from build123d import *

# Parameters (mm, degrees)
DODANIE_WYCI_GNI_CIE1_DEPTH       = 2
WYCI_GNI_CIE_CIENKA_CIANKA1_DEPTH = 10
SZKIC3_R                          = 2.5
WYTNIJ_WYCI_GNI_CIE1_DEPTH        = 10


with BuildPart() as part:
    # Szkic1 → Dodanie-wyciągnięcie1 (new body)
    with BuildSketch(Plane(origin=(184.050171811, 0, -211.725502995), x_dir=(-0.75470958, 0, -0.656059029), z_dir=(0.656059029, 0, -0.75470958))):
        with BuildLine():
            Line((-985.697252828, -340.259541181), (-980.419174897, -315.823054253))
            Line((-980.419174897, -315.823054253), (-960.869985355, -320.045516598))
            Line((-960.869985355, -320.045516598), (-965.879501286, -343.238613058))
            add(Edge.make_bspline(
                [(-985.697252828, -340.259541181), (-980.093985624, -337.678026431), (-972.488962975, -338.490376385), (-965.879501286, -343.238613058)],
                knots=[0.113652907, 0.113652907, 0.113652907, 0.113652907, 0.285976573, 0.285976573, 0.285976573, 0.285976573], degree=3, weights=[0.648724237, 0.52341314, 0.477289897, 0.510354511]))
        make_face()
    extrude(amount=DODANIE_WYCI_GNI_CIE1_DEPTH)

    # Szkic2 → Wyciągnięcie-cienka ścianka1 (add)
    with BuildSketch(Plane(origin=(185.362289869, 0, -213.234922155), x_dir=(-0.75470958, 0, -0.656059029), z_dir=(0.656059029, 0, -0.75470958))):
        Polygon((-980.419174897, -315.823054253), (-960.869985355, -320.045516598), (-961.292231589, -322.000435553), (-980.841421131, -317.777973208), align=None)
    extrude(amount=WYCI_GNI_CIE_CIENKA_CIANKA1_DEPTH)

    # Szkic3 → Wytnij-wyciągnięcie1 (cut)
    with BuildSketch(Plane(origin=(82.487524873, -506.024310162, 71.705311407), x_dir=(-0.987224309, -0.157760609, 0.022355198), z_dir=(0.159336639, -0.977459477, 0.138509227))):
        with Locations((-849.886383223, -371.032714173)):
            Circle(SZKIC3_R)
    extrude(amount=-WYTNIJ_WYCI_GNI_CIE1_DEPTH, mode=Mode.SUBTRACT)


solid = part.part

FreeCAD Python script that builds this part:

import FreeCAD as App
import Part
import Sketcher
from FreeCAD import Vector
Q = App.Units.Quantity

doc = App.newDocument("Part")
body = doc.addObject("PartDesign::Body", "Body")

sketch1 = doc.addObject("Sketcher::SketchObject", "Sketch")
body.addObject(sketch1)
sketch1.Placement = App.Placement(Vector(184.050172, 0, -211.725503), App.Rotation(Vector(-0.75470958, 0, -0.656059029), Vector(0, 1, 0), Vector(0.656059029, 0, -0.75470958), "ZXY"))
sketch1.addGeometry(Part.LineSegment(Vector(-980.419175, -315.823054, 0), Vector(-985.697253, -340.259541, 0)), False)
sketch1.addGeometry(Part.BSplineCurve([Vector(-985.697253, -340.259541, 0), Vector(-980.093985, -337.678026, 0), Vector(-972.488963, -338.490376, 0), Vector(-965.879501, -343.238613, 0)], [4, 4], [0.113652907, 0.285976573], False, 3, [0.648724237, 0.52341314, 0.477289897, 0.510354511], False), False)
sketch1.addGeometry(Part.LineSegment(Vector(-965.879501, -343.238613, 0), Vector(-960.869985, -320.045516, 0)), False)
sketch1.addGeometry(Part.LineSegment(Vector(-960.869985, -320.045516, 0), Vector(-980.419175, -315.823054, 0)), False)
sketch1.addConstraint(Sketcher.Constraint("Block", 1))
sketch1.addConstraint(Sketcher.Constraint("Coincident", 0, 2, 1, 1))
sketch1.addConstraint(Sketcher.Constraint("Coincident", 1, 2, 2, 1))
sketch1.addConstraint(Sketcher.Constraint("Coincident", 2, 2, 3, 1))
sketch1.addConstraint(Sketcher.Constraint("Coincident", 3, 2, 0, 1))
sketch1.addConstraint(Sketcher.Constraint("Distance", 0, Q("25 mm")))
sketch1.addConstraint(Sketcher.Constraint("Distance", 3, Q("20 mm")))
sketch1.addConstraint(Sketcher.Constraint("DistanceX", 3, 2, 2, 2, Q("19.54919 mm")))
sketch1.addConstraint(Sketcher.Constraint("DistanceX", 2, 2, -1, 1, Q("960.869985 mm")))
pad1 = doc.addObject("PartDesign::Pad", "Pad")
body.addObject(pad1)
pad1.Profile = sketch1
pad1.Length = 2

sketch2 = doc.addObject("Sketcher::SketchObject", "Sketch001")
body.addObject(sketch2)
sketch2.Placement = App.Placement(Vector(185.36229, 0, -213.234922), App.Rotation(Vector(-0.75470958, 0, -0.656059029), Vector(0, 1, 0), Vector(0.656059029, 0, -0.75470958), "ZXY"))
sketch2.addGeometry(Part.LineSegment(Vector(-960.869985, -320.045516, 0), Vector(-980.419175, -315.823054, 0)), False)
sketch2.addGeometry(Part.LineSegment(Vector(-980.419175, -315.823054, 0), Vector(-980.841421, -317.777973, 0)), False)
sketch2.addGeometry(Part.LineSegment(Vector(-980.841421, -317.777973, 0), Vector(-961.292231, -322.000435, 0)), False)
sketch2.addGeometry(Part.LineSegment(Vector(-961.292231, -322.000435, 0), Vector(-960.869985, -320.045516, 0)), False)
sketch2.addConstraint(Sketcher.Constraint("Coincident", 0, 2, 1, 1))
sketch2.addConstraint(Sketcher.Constraint("Coincident", 1, 2, 2, 1))
sketch2.addConstraint(Sketcher.Constraint("Coincident", 2, 2, 3, 1))
sketch2.addConstraint(Sketcher.Constraint("Coincident", 3, 2, 0, 1))
sketch2.addConstraint(Sketcher.Constraint("Perpendicular", 0, 1))
sketch2.addConstraint(Sketcher.Constraint("Perpendicular", 1, 2))
sketch2.addConstraint(Sketcher.Constraint("Perpendicular", 2, 3))
sketch2.addConstraint(Sketcher.Constraint("Distance", 0, Q("20 mm")))
sketch2.addConstraint(Sketcher.Constraint("Distance", 1, Q("2 mm")))
sketch2.addConstraint(Sketcher.Constraint("DistanceX", 1, 2, -1, 1, Q("980.841421 mm")))
sketch2.addConstraint(Sketcher.Constraint("DistanceX", 2, 2, -1, 1, Q("961.292231 mm")))
sketch2.addConstraint(Sketcher.Constraint("DistanceY", 0, 2, -1, 1, Q("315.823054 mm")))
pad2 = doc.addObject("PartDesign::Pad", "Pad001")
body.addObject(pad2)
pad2.Profile = sketch2
pad2.Length = 10

sketch3 = doc.addObject("Sketcher::SketchObject", "Sketch002")
body.addObject(sketch3)
sketch3.Placement = App.Placement(Vector(82.487525, -506.02431, 71.705311), App.Rotation(Vector(-0.987224309, -0.157760609, 0.022355198), Vector(0, -0.140301678, -0.990108802), Vector(0.159336639, -0.977459477, 0.138509227), "ZXY"))
sketch3.addGeometry(Part.Circle(Vector(-849.886384, -371.032714, 0), Vector(0, 0, 1), 2.5), False)
sketch3.addConstraint(Sketcher.Constraint("Diameter", 0, Q("5 mm")))
sketch3.addConstraint(Sketcher.Constraint("DistanceX", 0, 3, -1, 1, Q("849.886384 mm")))
sketch3.addConstraint(Sketcher.Constraint("DistanceY", 0, 3, -1, 1, Q("371.032714 mm")))
pocket1 = doc.addObject("PartDesign::Pocket", "Pocket")
body.addObject(pocket1)
pocket1.Profile = sketch3
pocket1.Length = 10

doc.recompute()
